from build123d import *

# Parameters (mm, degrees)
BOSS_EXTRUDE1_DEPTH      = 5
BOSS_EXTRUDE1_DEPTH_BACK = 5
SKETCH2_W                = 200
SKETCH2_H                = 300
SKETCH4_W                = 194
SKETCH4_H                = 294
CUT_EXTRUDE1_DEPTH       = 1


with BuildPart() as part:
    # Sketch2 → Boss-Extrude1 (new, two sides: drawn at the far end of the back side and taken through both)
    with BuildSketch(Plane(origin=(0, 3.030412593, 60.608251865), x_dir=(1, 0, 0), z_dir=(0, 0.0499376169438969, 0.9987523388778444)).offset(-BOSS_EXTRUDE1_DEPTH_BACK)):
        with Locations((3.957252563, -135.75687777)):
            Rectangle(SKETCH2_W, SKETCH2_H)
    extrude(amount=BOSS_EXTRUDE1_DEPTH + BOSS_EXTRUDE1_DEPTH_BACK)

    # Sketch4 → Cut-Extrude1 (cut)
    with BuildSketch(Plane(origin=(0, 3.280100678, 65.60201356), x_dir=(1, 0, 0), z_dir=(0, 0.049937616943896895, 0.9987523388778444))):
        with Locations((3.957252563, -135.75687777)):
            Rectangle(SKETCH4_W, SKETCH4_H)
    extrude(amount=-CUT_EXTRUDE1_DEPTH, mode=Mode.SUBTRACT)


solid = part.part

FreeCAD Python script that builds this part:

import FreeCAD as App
import Part
import Sketcher
from FreeCAD import Vector
Q = App.Units.Quantity

doc = App.newDocument("Part")
params = doc.addObject("Spreadsheet::Sheet", "Params")
for row, (alias, value) in enumerate([
    ("sketch1_width", "200 mm"),
    ("sketch1_height", "300 mm"),
    ("pad1_length", "5 mm"),
    ("pad1_length2", "5 mm"),
    ("sketch2_width", "194 mm"),
    ("sketch2_height", "294 mm"),
    ("pocket1_length", "1 mm"),
], start=1):
    params.set(f"A{row}", alias)
    params.set(f"B{row}", "=" + value)
    params.setAlias(f"B{row}", alias)

body = doc.addObject("PartDesign::Body", "Body")

# Sketch on an angled plane
sketch1 = doc.addObject("Sketcher::SketchObject", "Sketch")
body.addObject(sketch1)
sketch1.Placement = App.Placement(Vector(0, 3.030413, 60.608252), App.Rotation(Vector(1, 0, 0), Vector(0, 0.998752339, -0.049937617), Vector(0, 0.049937617, 0.998752339), "ZXY"))
sketch1.addGeometry(Part.LineSegment(Vector(-96, 14, 0), Vector(-96, -286, 0)), False)
sketch1.addGeometry(Part.LineSegment(Vector(-96, -286, 0), Vector(104, -286, 0)), False)
sketch1.addGeometry(Part.LineSegment(Vector(104, -286, 0), Vector(104, 14, 0)), False)
sketch1.addGeometry(Part.LineSegment(Vector(104, 14, 0), Vector(-96, 14, 0)), False)
sketch1.addConstraint(Sketcher.Constraint("Coincident", 0, 2, 1, 1))
sketch1.addConstraint(Sketcher.Constraint("Coincident", 1, 2, 2, 1))
sketch1.addConstraint(Sketcher.Constraint("Coincident", 2, 2, 3, 1))
sketch1.addConstraint(Sketcher.Constraint("Coincident", 3, 2, 0, 1))
sketch1.addConstraint(Sketcher.Constraint("Vertical", 0))
sketch1.addConstraint(Sketcher.Constraint("Horizontal", 1))
sketch1.addConstraint(Sketcher.Constraint("Vertical", 2))
sketch1.addConstraint(Sketcher.Constraint("Horizontal", 3))
sketch1.addConstraint(Sketcher.Constraint("DistanceX", 1, 1, 1, 2, Q("200 mm")))
sketch1.addConstraint(Sketcher.Constraint("DistanceY", 0, 2, 0, 1, Q("300 mm")))
sketch1.addConstraint(Sketcher.Constraint("DistanceX", 0, 2, -1, 1, Q("96.042747 mm")))
sketch1.addConstraint(Sketcher.Constraint("DistanceY", 0, 2, -1, 1, Q("285.756878 mm")))
sketch1.setExpression("Constraints[8]", "Params.sketch1_width")
sketch1.setExpression("Constraints[9]", "Params.sketch1_height")
pad1 = doc.addObject("PartDesign::Pad", "Pad")
body.addObject(pad1)
pad1.Profile = sketch1
pad1.Type = "TwoLengths"
pad1.setExpression("Length", "Params.pad1_length")
pad1.setExpression("Length2", "Params.pad1_length2")

# Sketch on an angled plane
sketch2 = doc.addObject("Sketcher::SketchObject", "Sketch001")
body.addObject(sketch2)
sketch2.Placement = App.Placement(Vector(0, 3.280101, 65.602014), App.Rotation(Vector(1, 0, 0), Vector(0, 0.998752339, -0.049937617), Vector(0, 0.049937617, 0.998752339), "ZXY"))
sketch2.addGeometry(Part.LineSegment(Vector(-93, 11, 0), Vector(-93, -283, 0)), False)
sketch2.addGeometry(Part.LineSegment(Vector(-93, -283, 0), Vector(101, -283, 0)), False)
sketch2.addGeometry(Part.LineSegment(Vector(101, -283, 0), Vector(101, 11, 0)), False)
sketch2.addGeometry(Part.LineSegment(Vector(101, 11, 0), Vector(-93, 11, 0)), False)
sketch2.addConstraint(Sketcher.Constraint("Coincident", 0, 2, 1, 1))
sketch2.addConstraint(Sketcher.Constraint("Coincident", 1, 2, 2, 1))
sketch2.addConstraint(Sketcher.Constraint("Coincident", 2, 2, 3, 1))
sketch2.addConstraint(Sketcher.Constraint("Coincident", 3, 2, 0, 1))
sketch2.addConstraint(Sketcher.Constraint("Vertical", 0))
sketch2.addConstraint(Sketcher.Constraint("Horizontal", 1))
sketch2.addConstraint(Sketcher.Constraint("Vertical", 2))
sketch2.addConstraint(Sketcher.Constraint("Horizontal", 3))
sketch2.addConstraint(Sketcher.Constraint("DistanceX", 1, 1, 1, 2, Q("194 mm")))
sketch2.addConstraint(Sketcher.Constraint("DistanceY", 0, 2, 0, 1, Q("294 mm")))
sketch2.addConstraint(Sketcher.Constraint("DistanceX", 0, 2, -1, 1, Q("93.042747 mm")))
sketch2.addConstraint(Sketcher.Constraint("DistanceY", 0, 2, -1, 1, Q("282.756878 mm")))
sketch2.setExpression("Constraints[8]", "Params.sketch2_width")
sketch2.setExpression("Constraints[9]", "Params.sketch2_height")
pocket1 = doc.addObject("PartDesign::Pocket", "Pocket")
body.addObject(pocket1)
pocket1.Profile = sketch2
pocket1.setExpression("Length", "Params.pocket1_length")

doc.recompute()
